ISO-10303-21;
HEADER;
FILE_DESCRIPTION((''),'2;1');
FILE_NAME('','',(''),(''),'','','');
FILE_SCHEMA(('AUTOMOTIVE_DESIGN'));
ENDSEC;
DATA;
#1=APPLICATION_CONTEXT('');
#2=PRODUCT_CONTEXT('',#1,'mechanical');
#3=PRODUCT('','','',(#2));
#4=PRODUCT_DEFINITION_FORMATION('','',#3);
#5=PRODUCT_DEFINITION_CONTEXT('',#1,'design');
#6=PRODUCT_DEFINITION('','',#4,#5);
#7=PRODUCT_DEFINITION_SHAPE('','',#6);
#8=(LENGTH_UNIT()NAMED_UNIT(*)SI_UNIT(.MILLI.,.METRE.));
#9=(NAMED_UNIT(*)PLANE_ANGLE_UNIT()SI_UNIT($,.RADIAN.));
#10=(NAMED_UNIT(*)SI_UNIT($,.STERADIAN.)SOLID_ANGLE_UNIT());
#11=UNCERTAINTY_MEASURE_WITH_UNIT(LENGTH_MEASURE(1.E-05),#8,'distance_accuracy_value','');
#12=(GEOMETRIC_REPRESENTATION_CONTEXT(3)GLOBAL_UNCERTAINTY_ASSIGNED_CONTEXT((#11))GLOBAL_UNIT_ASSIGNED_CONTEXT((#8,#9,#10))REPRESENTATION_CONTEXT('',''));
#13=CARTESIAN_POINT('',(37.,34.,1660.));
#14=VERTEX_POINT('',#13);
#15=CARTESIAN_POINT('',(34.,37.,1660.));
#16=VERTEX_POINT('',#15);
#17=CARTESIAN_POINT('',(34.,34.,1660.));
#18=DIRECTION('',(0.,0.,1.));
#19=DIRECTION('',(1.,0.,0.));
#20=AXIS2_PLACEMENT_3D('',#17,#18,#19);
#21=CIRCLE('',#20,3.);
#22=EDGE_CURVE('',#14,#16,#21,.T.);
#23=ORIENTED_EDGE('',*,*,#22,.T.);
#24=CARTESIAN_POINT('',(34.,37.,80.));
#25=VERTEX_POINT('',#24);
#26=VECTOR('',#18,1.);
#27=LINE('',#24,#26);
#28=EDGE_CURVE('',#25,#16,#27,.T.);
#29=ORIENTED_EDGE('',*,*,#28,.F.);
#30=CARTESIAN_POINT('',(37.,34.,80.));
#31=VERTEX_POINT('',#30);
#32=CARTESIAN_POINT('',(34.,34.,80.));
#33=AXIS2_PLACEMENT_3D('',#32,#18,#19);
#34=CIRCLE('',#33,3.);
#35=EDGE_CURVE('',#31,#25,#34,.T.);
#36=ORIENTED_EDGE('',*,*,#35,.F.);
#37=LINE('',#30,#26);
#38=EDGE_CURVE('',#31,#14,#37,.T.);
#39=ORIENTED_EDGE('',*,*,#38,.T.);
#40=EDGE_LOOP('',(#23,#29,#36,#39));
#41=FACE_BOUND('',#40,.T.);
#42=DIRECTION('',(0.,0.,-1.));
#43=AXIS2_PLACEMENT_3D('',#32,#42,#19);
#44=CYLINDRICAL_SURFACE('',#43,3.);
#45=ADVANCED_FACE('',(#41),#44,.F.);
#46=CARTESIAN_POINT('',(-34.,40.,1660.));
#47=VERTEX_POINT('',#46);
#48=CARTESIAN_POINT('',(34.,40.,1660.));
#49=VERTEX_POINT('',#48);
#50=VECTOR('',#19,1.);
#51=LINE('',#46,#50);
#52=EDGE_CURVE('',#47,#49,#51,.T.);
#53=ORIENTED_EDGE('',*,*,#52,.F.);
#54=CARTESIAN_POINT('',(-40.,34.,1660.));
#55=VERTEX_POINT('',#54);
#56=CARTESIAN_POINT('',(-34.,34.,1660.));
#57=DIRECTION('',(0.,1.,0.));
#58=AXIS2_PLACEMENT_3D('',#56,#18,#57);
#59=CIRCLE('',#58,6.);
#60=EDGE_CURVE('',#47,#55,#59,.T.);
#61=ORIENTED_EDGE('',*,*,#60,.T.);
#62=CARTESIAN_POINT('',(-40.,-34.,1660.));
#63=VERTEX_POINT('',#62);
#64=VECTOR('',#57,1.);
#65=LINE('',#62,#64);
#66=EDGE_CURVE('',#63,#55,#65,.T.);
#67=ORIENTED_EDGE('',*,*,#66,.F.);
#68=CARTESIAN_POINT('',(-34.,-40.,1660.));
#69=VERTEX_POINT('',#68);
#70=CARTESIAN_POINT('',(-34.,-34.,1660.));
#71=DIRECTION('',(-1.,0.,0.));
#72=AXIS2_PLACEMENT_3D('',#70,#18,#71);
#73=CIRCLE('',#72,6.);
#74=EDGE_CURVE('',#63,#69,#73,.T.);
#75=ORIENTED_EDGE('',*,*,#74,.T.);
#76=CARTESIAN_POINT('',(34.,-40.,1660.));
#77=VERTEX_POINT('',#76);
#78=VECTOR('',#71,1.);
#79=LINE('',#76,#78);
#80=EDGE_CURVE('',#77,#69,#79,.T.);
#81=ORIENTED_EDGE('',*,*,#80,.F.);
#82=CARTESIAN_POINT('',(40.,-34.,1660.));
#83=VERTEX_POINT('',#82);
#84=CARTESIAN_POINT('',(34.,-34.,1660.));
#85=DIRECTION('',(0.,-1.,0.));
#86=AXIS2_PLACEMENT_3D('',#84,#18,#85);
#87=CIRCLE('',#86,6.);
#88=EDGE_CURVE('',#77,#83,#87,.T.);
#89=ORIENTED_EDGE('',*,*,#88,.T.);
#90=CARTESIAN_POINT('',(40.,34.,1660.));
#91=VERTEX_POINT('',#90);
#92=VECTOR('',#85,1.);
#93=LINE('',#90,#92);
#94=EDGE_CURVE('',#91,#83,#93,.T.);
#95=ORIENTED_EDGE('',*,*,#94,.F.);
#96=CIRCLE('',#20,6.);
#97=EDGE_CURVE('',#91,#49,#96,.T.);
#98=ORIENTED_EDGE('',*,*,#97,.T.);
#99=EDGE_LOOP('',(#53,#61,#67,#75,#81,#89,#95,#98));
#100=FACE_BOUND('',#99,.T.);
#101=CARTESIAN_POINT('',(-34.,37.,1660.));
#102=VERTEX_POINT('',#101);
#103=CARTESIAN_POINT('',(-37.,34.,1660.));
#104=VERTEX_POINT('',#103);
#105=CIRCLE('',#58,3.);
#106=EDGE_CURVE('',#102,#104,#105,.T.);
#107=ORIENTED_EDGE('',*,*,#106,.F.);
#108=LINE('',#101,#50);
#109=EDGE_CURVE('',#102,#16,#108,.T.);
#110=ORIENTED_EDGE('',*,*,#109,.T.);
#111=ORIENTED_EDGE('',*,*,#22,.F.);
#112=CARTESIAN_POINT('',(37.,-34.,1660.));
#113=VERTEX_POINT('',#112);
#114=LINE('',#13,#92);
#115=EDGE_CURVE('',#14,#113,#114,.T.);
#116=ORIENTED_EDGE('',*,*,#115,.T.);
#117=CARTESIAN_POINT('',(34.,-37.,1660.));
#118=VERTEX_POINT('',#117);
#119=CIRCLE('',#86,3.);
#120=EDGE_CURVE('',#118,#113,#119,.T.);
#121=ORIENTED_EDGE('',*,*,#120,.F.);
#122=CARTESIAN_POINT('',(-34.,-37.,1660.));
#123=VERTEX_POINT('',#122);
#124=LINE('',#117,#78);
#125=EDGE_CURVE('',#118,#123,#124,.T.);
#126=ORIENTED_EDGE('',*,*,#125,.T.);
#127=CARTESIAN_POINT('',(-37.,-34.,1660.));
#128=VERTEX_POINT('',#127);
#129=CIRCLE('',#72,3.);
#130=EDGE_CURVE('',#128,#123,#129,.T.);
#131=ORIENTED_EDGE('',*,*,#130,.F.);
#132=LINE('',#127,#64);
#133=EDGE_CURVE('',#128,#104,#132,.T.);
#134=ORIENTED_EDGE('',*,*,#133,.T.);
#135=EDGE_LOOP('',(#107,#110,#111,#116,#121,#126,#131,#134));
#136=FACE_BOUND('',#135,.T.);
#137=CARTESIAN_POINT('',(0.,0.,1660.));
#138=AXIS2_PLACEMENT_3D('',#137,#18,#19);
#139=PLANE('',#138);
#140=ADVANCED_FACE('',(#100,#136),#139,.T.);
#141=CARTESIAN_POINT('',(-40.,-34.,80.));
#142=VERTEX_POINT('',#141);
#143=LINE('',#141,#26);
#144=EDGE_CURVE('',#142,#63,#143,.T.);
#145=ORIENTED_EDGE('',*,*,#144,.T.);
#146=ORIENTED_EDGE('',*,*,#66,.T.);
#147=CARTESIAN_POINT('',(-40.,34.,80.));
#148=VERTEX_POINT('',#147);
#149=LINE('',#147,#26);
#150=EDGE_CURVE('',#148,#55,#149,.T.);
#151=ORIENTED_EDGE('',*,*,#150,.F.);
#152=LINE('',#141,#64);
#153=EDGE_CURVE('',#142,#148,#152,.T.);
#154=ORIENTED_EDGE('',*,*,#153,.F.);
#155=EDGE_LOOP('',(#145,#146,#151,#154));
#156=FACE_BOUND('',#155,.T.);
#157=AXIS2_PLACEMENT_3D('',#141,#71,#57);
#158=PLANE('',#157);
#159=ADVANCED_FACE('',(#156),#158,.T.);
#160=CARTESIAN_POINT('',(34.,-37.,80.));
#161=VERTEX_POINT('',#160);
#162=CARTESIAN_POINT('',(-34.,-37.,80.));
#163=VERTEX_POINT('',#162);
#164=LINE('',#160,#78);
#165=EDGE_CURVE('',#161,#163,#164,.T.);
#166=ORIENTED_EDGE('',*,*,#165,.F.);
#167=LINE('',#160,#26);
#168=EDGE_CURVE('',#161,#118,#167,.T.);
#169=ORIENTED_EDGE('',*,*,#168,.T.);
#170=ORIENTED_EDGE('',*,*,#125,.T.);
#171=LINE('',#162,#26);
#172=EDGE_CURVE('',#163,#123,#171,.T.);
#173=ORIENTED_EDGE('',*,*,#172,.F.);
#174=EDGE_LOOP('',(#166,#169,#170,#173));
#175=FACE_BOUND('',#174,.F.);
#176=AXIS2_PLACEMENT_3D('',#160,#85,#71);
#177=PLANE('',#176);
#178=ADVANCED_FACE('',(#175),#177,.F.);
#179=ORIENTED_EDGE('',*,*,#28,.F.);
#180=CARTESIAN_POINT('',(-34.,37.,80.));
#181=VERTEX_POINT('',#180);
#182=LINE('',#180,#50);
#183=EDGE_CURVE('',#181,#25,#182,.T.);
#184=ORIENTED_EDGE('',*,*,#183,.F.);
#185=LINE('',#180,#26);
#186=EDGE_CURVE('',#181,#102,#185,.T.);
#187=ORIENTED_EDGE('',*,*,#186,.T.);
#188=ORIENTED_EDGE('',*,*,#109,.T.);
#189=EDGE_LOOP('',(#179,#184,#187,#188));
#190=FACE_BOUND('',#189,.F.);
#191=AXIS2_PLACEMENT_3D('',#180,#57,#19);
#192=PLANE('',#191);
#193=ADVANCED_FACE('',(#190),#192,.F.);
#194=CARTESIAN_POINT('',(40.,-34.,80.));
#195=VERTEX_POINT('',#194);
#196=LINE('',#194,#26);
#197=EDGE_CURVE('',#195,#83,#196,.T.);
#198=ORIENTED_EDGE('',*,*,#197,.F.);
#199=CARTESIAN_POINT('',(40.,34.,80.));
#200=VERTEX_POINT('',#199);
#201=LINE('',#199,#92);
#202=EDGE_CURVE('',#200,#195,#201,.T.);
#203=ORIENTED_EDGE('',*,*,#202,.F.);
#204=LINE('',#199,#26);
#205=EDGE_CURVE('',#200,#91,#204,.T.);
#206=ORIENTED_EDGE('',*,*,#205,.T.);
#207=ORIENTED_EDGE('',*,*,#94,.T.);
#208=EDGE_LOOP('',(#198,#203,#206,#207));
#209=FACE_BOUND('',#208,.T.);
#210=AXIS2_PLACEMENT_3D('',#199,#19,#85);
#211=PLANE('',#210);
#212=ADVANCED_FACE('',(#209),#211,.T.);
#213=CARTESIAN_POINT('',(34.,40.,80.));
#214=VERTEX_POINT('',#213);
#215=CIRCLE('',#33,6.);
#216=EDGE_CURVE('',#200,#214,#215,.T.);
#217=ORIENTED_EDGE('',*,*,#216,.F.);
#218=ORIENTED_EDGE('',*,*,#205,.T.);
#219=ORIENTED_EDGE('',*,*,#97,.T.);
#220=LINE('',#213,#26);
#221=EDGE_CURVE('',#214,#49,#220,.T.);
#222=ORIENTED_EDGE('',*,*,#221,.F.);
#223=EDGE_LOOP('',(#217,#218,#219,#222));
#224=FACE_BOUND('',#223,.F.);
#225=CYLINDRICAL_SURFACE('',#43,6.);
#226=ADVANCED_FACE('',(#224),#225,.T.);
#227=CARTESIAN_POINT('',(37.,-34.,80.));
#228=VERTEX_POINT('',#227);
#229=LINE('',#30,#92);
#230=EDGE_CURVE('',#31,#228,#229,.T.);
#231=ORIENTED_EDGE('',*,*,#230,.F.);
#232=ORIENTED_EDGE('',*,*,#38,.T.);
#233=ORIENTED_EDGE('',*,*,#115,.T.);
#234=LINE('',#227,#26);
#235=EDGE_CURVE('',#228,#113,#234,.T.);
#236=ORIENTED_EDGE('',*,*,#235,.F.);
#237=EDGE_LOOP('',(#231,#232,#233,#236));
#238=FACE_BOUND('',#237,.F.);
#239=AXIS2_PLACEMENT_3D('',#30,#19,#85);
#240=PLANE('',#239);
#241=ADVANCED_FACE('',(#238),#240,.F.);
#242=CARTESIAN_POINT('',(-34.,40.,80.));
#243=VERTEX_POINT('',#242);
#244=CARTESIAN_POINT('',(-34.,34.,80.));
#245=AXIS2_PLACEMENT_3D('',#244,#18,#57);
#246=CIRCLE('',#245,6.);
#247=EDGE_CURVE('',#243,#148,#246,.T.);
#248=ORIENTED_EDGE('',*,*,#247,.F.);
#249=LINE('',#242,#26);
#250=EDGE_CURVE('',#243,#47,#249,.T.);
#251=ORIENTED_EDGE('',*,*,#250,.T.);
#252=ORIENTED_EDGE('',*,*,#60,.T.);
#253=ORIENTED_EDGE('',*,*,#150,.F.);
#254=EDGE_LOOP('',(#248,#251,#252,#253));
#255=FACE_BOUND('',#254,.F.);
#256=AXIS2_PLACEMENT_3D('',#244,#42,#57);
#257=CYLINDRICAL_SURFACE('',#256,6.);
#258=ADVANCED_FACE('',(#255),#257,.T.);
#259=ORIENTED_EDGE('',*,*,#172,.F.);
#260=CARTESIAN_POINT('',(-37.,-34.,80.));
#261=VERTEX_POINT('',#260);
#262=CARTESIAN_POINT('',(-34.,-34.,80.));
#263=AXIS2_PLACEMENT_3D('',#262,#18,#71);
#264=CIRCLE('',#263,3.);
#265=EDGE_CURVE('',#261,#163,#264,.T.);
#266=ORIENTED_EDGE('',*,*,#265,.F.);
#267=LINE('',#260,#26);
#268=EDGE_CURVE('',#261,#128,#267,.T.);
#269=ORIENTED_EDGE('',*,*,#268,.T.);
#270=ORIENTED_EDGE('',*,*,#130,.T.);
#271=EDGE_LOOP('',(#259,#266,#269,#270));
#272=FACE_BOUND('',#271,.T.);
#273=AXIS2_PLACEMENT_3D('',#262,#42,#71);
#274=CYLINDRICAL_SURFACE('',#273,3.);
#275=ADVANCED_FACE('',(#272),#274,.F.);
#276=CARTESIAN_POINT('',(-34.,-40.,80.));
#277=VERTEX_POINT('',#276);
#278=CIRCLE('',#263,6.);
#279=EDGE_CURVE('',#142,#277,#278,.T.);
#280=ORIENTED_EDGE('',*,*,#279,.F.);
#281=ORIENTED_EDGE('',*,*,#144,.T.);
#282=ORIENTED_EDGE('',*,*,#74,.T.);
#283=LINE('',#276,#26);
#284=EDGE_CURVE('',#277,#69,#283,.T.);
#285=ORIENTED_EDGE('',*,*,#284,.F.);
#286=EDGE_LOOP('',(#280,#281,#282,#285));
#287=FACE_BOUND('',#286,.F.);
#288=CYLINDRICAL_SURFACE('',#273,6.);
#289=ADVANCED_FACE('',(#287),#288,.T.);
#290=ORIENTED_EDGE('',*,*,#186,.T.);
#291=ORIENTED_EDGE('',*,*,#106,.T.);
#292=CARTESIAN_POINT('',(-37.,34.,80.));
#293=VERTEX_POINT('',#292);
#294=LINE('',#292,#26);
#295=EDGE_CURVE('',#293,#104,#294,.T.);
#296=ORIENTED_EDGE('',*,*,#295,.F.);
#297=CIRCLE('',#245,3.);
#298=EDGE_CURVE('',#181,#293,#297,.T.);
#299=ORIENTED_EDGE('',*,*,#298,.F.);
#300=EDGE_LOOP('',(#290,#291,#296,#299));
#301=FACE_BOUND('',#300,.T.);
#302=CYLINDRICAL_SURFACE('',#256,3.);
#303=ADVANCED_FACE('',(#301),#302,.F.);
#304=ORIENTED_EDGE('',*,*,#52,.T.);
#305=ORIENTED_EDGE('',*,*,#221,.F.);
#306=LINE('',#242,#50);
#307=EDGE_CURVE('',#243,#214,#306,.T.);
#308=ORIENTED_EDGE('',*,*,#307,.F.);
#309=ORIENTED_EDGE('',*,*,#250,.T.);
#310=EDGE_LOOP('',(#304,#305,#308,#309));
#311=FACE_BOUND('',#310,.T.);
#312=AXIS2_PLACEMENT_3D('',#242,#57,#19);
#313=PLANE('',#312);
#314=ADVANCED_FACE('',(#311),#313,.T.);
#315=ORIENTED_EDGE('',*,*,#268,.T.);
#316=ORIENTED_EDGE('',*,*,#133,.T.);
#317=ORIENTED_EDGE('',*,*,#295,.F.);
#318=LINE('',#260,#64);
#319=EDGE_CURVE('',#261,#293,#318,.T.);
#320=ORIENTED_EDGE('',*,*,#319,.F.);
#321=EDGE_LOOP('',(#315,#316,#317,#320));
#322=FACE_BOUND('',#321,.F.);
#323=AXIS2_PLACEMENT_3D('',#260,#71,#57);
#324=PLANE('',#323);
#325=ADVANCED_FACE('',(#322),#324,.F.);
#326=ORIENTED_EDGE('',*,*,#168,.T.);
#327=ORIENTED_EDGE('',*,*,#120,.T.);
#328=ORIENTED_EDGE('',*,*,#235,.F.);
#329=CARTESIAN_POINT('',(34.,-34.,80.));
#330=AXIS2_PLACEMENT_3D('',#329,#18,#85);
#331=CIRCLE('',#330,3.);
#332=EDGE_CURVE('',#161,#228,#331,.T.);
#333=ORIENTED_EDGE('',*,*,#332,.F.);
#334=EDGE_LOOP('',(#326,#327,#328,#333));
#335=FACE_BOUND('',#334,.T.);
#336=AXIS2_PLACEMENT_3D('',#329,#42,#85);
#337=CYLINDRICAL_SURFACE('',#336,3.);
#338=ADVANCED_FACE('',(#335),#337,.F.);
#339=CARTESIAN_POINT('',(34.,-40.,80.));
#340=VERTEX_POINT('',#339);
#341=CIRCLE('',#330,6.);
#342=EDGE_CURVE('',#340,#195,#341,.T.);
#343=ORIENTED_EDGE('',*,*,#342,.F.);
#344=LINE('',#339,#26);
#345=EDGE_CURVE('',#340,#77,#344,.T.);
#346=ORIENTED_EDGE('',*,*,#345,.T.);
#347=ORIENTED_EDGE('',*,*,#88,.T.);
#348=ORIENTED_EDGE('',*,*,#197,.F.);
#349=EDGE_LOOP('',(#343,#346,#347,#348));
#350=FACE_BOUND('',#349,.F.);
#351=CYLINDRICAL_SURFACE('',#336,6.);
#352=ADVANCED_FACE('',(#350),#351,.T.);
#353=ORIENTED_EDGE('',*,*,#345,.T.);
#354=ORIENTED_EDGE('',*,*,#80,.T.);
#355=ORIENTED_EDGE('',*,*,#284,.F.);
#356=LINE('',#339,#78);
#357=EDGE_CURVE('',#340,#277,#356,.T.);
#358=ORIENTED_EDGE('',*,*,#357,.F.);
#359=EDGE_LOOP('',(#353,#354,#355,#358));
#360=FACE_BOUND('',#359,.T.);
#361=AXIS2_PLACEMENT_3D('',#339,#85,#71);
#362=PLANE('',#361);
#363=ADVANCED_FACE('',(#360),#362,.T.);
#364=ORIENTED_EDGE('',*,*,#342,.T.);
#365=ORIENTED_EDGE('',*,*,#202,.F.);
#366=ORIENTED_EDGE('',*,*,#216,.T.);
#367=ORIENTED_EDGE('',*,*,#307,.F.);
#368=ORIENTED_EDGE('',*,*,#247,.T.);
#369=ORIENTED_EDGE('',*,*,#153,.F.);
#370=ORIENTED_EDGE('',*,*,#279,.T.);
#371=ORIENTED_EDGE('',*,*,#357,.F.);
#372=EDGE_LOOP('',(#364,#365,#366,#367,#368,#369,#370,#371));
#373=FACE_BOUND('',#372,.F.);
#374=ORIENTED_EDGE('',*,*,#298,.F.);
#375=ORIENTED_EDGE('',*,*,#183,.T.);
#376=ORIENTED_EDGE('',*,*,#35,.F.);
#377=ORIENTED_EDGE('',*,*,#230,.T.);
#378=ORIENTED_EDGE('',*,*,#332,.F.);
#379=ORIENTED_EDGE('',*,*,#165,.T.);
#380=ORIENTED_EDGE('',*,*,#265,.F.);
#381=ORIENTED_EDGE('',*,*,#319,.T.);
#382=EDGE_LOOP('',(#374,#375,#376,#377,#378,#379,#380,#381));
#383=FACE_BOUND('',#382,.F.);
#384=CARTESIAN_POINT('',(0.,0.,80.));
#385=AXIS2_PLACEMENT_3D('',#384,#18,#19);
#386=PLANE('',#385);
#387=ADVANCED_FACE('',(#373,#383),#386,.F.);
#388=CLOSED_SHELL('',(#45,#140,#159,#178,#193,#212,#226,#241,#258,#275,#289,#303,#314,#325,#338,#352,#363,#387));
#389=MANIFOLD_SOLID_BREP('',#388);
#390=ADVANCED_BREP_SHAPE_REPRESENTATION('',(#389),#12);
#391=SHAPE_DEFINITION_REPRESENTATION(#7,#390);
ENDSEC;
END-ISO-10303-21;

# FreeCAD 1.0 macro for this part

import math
import FreeCAD as App
import Part
import Sketcher

V = App.Vector

doc = App.newDocument("Part")
body = doc.addObject("PartDesign::Body", "Body")

# Sketch on XY plane
sketch1 = body.newObject("Sketcher::SketchObject", "Sketch")
sketch1.AttachmentSupport = (doc.getObject("XY_Plane"), [""])
sketch1.MapMode = "FlatFace"
sketch1.AttachmentOffset = App.Placement(V(0, 0, 80), App.Rotation())
sketch1.addGeometry([
    Part.LineSegment(V(-40, 34, 0), V(-40, -34, 0)),  # 0
    Part.ArcOfCircle(Part.Circle(V(-34, -34, 0), V(0, 0, 1), 6), math.radians(180), math.radians(270)),  # 1
    Part.LineSegment(V(-34, -40, 0), V(34, -40, 0)),  # 2
    Part.ArcOfCircle(Part.Circle(V(34, -34, 0), V(0, 0, 1), 6), math.radians(-90), math.radians(0)),  # 3
    Part.LineSegment(V(40, -34, 0), V(40, 34, 0)),  # 4
    Part.ArcOfCircle(Part.Circle(V(34, 34, 0), V(0, 0, 1), 6), math.radians(0), math.radians(90)),  # 5
    Part.LineSegment(V(34, 40, 0), V(-34, 40, 0)),  # 6
    Part.ArcOfCircle(Part.Circle(V(-34, 34, 0), V(0, 0, 1), 6), math.radians(90), math.radians(180)),  # 7
    Part.ArcOfCircle(Part.Circle(V(-34, 34, 0), V(0, 0, 1), 3), math.radians(90), math.radians(180)),  # 8
    Part.LineSegment(V(-34, 37, 0), V(34, 37, 0)),  # 9
    Part.ArcOfCircle(Part.Circle(V(34, 34, 0), V(0, 0, 1), 3), math.radians(0), math.radians(90)),  # 10
    Part.LineSegment(V(37, 34, 0), V(37, -34, 0)),  # 11
    Part.ArcOfCircle(Part.Circle(V(34, -34, 0), V(0, 0, 1), 3), math.radians(-90), math.radians(0)),  # 12
    Part.LineSegment(V(34, -37, 0), V(-34, -37, 0)),  # 13
    Part.ArcOfCircle(Part.Circle(V(-34, -34, 0), V(0, 0, 1), 3), math.radians(180), math.radians(270)),  # 14
    Part.LineSegment(V(-37, -34, 0), V(-37, 34, 0)),  # 15
], False)
sketch1.addConstraint([
    Sketcher.Constraint("Tangent", 0, 2, 1, 1),
    Sketcher.Constraint("Tangent", 1, 2, 2, 1),
    Sketcher.Constraint("Tangent", 2, 2, 3, 1),
    Sketcher.Constraint("Tangent", 3, 2, 4, 1),
    Sketcher.Constraint("Tangent", 4, 2, 5, 1),
    Sketcher.Constraint("Tangent", 5, 2, 6, 1),
    Sketcher.Constraint("Tangent", 6, 2, 7, 1),
    Sketcher.Constraint("Tangent", 7, 2, 0, 1),
    Sketcher.Constraint("Tangent", 8, 1, 9, 1),
    Sketcher.Constraint("Tangent", 9, 2, 10, 2),
    Sketcher.Constraint("Tangent", 10, 1, 11, 1),
    Sketcher.Constraint("Tangent", 11, 2, 12, 2),
    Sketcher.Constraint("Tangent", 12, 1, 13, 1),
    Sketcher.Constraint("Tangent", 13, 2, 14, 2),
    Sketcher.Constraint("Tangent", 14, 1, 15, 1),
    Sketcher.Constraint("Tangent", 15, 2, 8, 2),
    Sketcher.Constraint("Vertical", 0),
    Sketcher.Constraint("Horizontal", 2),
    Sketcher.Constraint("Vertical", 4),
    Sketcher.Constraint("Horizontal", 6),
    Sketcher.Constraint("Horizontal", 9),
    Sketcher.Constraint("Vertical", 11),
    Sketcher.Constraint("Horizontal", 13),
    Sketcher.Constraint("Vertical", 15),
    Sketcher.Constraint("Coincident", 8, 3, 7, 3),
    Sketcher.Constraint("Coincident", 10, 3, 5, 3),
    Sketcher.Constraint("Coincident", 12, 3, 3, 3),
    Sketcher.Constraint("Equal", 1, 3),
    Sketcher.Constraint("Equal", 3, 5),
    Sketcher.Constraint("Equal", 5, 7),
    Sketcher.Constraint("Equal", 12, 14),
    Sketcher.Constraint("Symmetric", 1, 3, 5, 3, -1, 1),
    Sketcher.Constraint("Equal", 13, 0),
    Sketcher.Constraint("Radius", 1, 6.0),
    Sketcher.Constraint("Radius", 8, 3.0),
    Sketcher.Constraint("DistanceX", 0, 2, -1, 1, 40.0),
])
pad1 = body.newObject("PartDesign::Pad", "Pad")
pad1.Profile = sketch1
pad1.Length = 1580

doc.recompute()
